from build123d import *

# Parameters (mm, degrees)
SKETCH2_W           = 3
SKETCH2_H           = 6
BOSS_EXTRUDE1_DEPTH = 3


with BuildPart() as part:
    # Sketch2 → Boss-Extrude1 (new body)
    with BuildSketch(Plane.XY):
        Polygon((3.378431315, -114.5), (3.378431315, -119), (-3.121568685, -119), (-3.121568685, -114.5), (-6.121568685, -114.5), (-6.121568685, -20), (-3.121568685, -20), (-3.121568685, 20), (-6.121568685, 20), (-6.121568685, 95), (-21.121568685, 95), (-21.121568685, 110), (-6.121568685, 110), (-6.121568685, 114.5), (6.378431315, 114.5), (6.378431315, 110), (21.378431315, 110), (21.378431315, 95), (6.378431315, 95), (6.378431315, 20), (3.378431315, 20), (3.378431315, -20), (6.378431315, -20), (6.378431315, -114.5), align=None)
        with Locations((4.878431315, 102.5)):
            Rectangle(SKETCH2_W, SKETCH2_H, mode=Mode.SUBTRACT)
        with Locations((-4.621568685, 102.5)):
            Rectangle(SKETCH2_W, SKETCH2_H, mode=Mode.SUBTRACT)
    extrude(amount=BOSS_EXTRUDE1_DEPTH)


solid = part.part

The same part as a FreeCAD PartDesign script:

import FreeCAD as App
import Part
import Sketcher

V = App.Vector
Q = App.Units.Quantity

doc = App.newDocument("Part")
body = doc.addObject("PartDesign::Body", "Body")

sketch1 = body.newObject("Sketcher::SketchObject", "Sketch")
sketch1.AttachmentSupport = (doc.getObject("XY_Plane"), [""])
sketch1.MapMode = "FlatFace"
sketch1.addGeometry(Part.LineSegment(V(3.4, -119, 0), V(3.4, -114.5, 0)), False)
sketch1.addGeometry(Part.LineSegment(V(3.4, -114.5, 0), V(6.4, -114.5, 0)), False)
sketch1.addGeometry(Part.LineSegment(V(6.4, -114.5, 0), V(6.4, -20, 0)), False)
sketch1.addGeometry(Part.LineSegment(V(6.4, -20, 0), V(3.4, -20, 0)), False)
sketch1.addGeometry(Part.LineSegment(V(3.4, -20, 0), V(3.4, 20, 0)), False)
sketch1.addGeometry(Part.LineSegment(V(3.4, 20, 0), V(6.4, 20, 0)), False)
sketch1.addGeometry(Part.LineSegment(V(6.4, 20, 0), V(6.4, 95, 0)), False)
sketch1.addGeometry(Part.LineSegment(V(6.4, 95, 0), V(21.4, 95, 0)), False)
sketch1.addGeometry(Part.LineSegment(V(21.4, 95, 0), V(21.4, 110, 0)), False)
sketch1.addGeometry(Part.LineSegment(V(21.4, 110, 0), V(6.4, 110, 0)), False)
sketch1.addGeometry(Part.LineSegment(V(6.4, 110, 0), V(6.4, 114.5, 0)), False)
sketch1.addGeometry(Part.LineSegment(V(6.4, 114.5, 0), V(-6.1, 114.5, 0)), False)
sketch1.addGeometry(Part.LineSegment(V(-6.1, 114.5, 0), V(-6.1, 110, 0)), False)
sketch1.addGeometry(Part.LineSegment(V(-6.1, 110, 0), V(-21.1, 110, 0)), False)
sketch1.addGeometry(Part.LineSegment(V(-21.1, 110, 0), V(-21.1, 95, 0)), False)
sketch1.addGeometry(Part.LineSegment(V(-21.1, 95, 0), V(-6.1, 95, 0)), False)
sketch1.addGeometry(Part.LineSegment(V(-6.1, 95, 0), V(-6.1, 20, 0)), False)
sketch1.addGeometry(Part.LineSegment(V(-6.1, 20, 0), V(-3.1, 20, 0)), False)
sketch1.addGeometry(Part.LineSegment(V(-3.1, 20, 0), V(-3.1, -20, 0)), False)
sketch1.addGeometry(Part.LineSegment(V(-3.1, -20, 0), V(-6.1, -20, 0)), False)
sketch1.addGeometry(Part.LineSegment(V(-6.1, -20, 0), V(-6.1, -114.5, 0)), False)
sketch1.addGeometry(Part.LineSegment(V(-6.1, -114.5, 0), V(-3.1, -114.5, 0)), False)
sketch1.addGeometry(Part.LineSegment(V(-3.1, -114.5, 0), V(-3.1, -119, 0)), False)
sketch1.addGeometry(Part.LineSegment(V(-3.1, -119, 0), V(3.4, -119, 0)), False)
sketch1.addGeometry(Part.LineSegment(V(3.4, 99.5, 0), V(3.4, 105.5, 0)), False)
sketch1.addGeometry(Part.LineSegment(V(3.4, 105.5, 0), V(6.4, 105.5, 0)), False)
sketch1.addGeometry(Part.LineSegment(V(6.4, 105.5, 0), V(6.4, 99.5, 0)), False)
sketch1.addGeometry(Part.LineSegment(V(6.4, 99.5, 0), V(3.4, 99.5, 0)), False)
sketch1.addGeometry(Part.LineSegment(V(-6.1, 99.5, 0), V(-6.1, 105.5, 0)), False)
sketch1.addGeometry(Part.LineSegment(V(-6.1, 105.5, 0), V(-3.1, 105.5, 0)), False)
sketch1.addGeometry(Part.LineSegment(V(-3.1, 105.5, 0), V(-3.1, 99.5, 0)), False)
sketch1.addGeometry(Part.LineSegment(V(-3.1, 99.5, 0), V(-6.1, 99.5, 0)), False)
sketch1.addConstraint(Sketcher.Constraint("Coincident", 0, 2, 1, 1))
sketch1.addConstraint(Sketcher.Constraint("Coincident", 1, 2, 2, 1))
sketch1.addConstraint(Sketcher.Constraint("Coincident", 2, 2, 3, 1))
sketch1.addConstraint(Sketcher.Constraint("Coincident", 3, 2, 4, 1))
sketch1.addConstraint(Sketcher.Constraint("Coincident", 4, 2, 5, 1))
sketch1.addConstraint(Sketcher.Constraint("Coincident", 5, 2, 6, 1))
sketch1.addConstraint(Sketcher.Constraint("Coincident", 6, 2, 7, 1))
sketch1.addConstraint(Sketcher.Constraint("Coincident", 7, 2, 8, 1))
sketch1.addConstraint(Sketcher.Constraint("Coincident", 8, 2, 9, 1))
sketch1.addConstraint(Sketcher.Constraint("Coincident", 9, 2, 10, 1))
sketch1.addConstraint(Sketcher.Constraint("Coincident", 10, 2, 11, 1))
sketch1.addConstraint(Sketcher.Constraint("Coincident", 11, 2, 12, 1))
sketch1.addConstraint(Sketcher.Constraint("Coincident", 12, 2, 13, 1))
sketch1.addConstraint(Sketcher.Constraint("Coincident", 13, 2, 14, 1))
sketch1.addConstraint(Sketcher.Constraint("Coincident", 14, 2, 15, 1))
sketch1.addConstraint(Sketcher.Constraint("Coincident", 15, 2, 16, 1))
sketch1.addConstraint(Sketcher.Constraint("Coincident", 16, 2, 17, 1))
sketch1.addConstraint(Sketcher.Constraint("Coincident", 17, 2, 18, 1))
sketch1.addConstraint(Sketcher.Constraint("Coincident", 18, 2, 19, 1))
sketch1.addConstraint(Sketcher.Constraint("Coincident", 19, 2, 20, 1))
sketch1.addConstraint(Sketcher.Constraint("Coincident", 20, 2, 21, 1))
sketch1.addConstraint(Sketcher.Constraint("Coincident", 21, 2, 22, 1))
sketch1.addConstraint(Sketcher.Constraint("Coincident", 22, 2, 23, 1))
sketch1.addConstraint(Sketcher.Constraint("Coincident", 23, 2, 0, 1))
sketch1.addConstraint(Sketcher.Constraint("Coincident", 24, 2, 25, 1))
sketch1.addConstraint(Sketcher.Constraint("Coincident", 25, 2, 26, 1))
sketch1.addConstraint(Sketcher.Constraint("Coincident", 26, 2, 27, 1))
sketch1.addConstraint(Sketcher.Constraint("Coincident", 27, 2, 24, 1))
sketch1.addConstraint(Sketcher.Constraint("Coincident", 28, 2, 29, 1))
sketch1.addConstraint(Sketcher.Constraint("Coincident", 29, 2, 30, 1))
sketch1.addConstraint(Sketcher.Constraint("Coincident", 30, 2, 31, 1))
sketch1.addConstraint(Sketcher.Constraint("Coincident", 31, 2, 28, 1))
sketch1.addConstraint(Sketcher.Constraint("Vertical", 0))
sketch1.addConstraint(Sketcher.Constraint("Horizontal", 1))
sketch1.addConstraint(Sketcher.Constraint("Vertical", 2))
sketch1.addConstraint(Sketcher.Constraint("Horizontal", 3))
sketch1.addConstraint(Sketcher.Constraint("Vertical", 4))
sketch1.addConstraint(Sketcher.Constraint("Horizontal", 5))
sketch1.addConstraint(Sketcher.Constraint("Vertical", 6))
sketch1.addConstraint(Sketcher.Constraint("Horizontal", 7))
sketch1.addConstraint(Sketcher.Constraint("Vertical", 8))
sketch1.addConstraint(Sketcher.Constraint("Horizontal", 9))
sketch1.addConstraint(Sketcher.Constraint("Vertical", 10))
sketch1.addConstraint(Sketcher.Constraint("Horizontal", 11))
sketch1.addConstraint(Sketcher.Constraint("Vertical", 12))
sketch1.addConstraint(Sketcher.Constraint("Horizontal", 13))
sketch1.addConstraint(Sketcher.Constraint("Vertical", 14))
sketch1.addConstraint(Sketcher.Constraint("Horizontal", 15))
sketch1.addConstraint(Sketcher.Constraint("Vertical", 16))
sketch1.addConstraint(Sketcher.Constraint("Horizontal", 17))
sketch1.addConstraint(Sketcher.Constraint("Vertical", 18))
sketch1.addConstraint(Sketcher.Constraint("Horizontal", 19))
sketch1.addConstraint(Sketcher.Constraint("Vertical", 20))
sketch1.addConstraint(Sketcher.Constraint("Horizontal", 21))
sketch1.addConstraint(Sketcher.Constraint("Vertical", 22))
sketch1.addConstraint(Sketcher.Constraint("Horizontal", 23))
sketch1.addConstraint(Sketcher.Constraint("Vertical", 24))
sketch1.addConstraint(Sketcher.Constraint("Horizontal", 25))
sketch1.addConstraint(Sketcher.Constraint("Vertical", 26))
sketch1.addConstraint(Sketcher.Constraint("Horizontal", 27))
sketch1.addConstraint(Sketcher.Constraint("Vertical", 28))
sketch1.addConstraint(Sketcher.Constraint("Horizontal", 29))
sketch1.addConstraint(Sketcher.Constraint("Vertical", 30))
sketch1.addConstraint(Sketcher.Constraint("Horizontal", 31))
sketch1.addConstraint(Sketcher.Constraint("Symmetric", 2, 2, 5, 2, -1))
sketch1.addConstraint(Sketcher.Constraint("Symmetric", 1, 2, 10, 2, -1))
sketch1.addConstraint(Sketcher.Constraint("Symmetric", 16, 2, 19, 2, -1))
sketch1.addConstraint(Sketcher.Constraint("Symmetric", 11, 2, 20, 2, -1))
sketch1.addConstraint(Sketcher.Constraint("Horizontal", 9, 2, 12, 2))
sketch1.addConstraint(Sketcher.Constraint("Horizontal", 7, 2, 14, 2))
sketch1.addConstraint(Sketcher.Constraint("Horizontal", 5, 2, 16, 2))
sketch1.addConstraint(Sketcher.Constraint("Horizontal", 25, 2, 28, 2))
sketch1.addConstraint(Sketcher.Constraint("Horizontal", 27, 2, 30, 2))
sketch1.addConstraint(Sketcher.Constraint("Vertical", 0, 2, 3, 2))
sketch1.addConstraint(Sketcher.Constraint("Vertical", 18, 2, 21, 2))
sketch1.addConstraint(Sketcher.Constraint("Vertical", 23, 2, 24, 2))
sketch1.addConstraint(Sketcher.Constraint("Vertical", 10, 2, 25, 2))
sketch1.addConstraint(Sketcher.Constraint("Vertical", 20, 2, 28, 2))
sketch1.addConstraint(Sketcher.Constraint("Vertical", 22, 2, 29, 2))
sketch1.addConstraint(Sketcher.Constraint("Equal", 9, 13))
sketch1.addConstraint(Sketcher.Constraint("Equal", 5, 17))
sketch1.addConstraint(Sketcher.Constraint("Equal", 15, 8))
sketch1.addConstraint(Sketcher.Constraint("Equal", 0, 10))
sketch1.addConstraint(Sketcher.Constraint("DistanceX", 1, 1, 1, 2, Q("3 mm")))
sketch1.addConstraint(Sketcher.Constraint("DistanceX", 7, 1, 7, 2, Q("15 mm")))
sketch1.addConstraint(Sketcher.Constraint("DistanceY", 4, 1, 4, 2, Q("40 mm")))
sketch1.addConstraint(Sketcher.Constraint("DistanceY", 6, 1, 6, 2, Q("75 mm")))
sketch1.addConstraint(Sketcher.Constraint("DistanceY", 24, 1, 24, 2, Q("6 mm")))
sketch1.addConstraint(Sketcher.Constraint("DistanceX", 11, 2, 11, 1, Q("12.5 mm")))
sketch1.addConstraint(Sketcher.Constraint("DistanceY", 0, 1, 0, 2, Q("4.5 mm")))
sketch1.addConstraint(Sketcher.Constraint("DistanceY", 24, 2, 10, 2, Q("9 mm")))
sketch1.addConstraint(Sketcher.Constraint("DistanceX", -1, 1, 0, 2, Q("3.378431 mm")))
pad1 = body.newObject("PartDesign::Pad", "Pad")
pad1.Profile = sketch1
pad1.Length = 3

doc.recompute()
